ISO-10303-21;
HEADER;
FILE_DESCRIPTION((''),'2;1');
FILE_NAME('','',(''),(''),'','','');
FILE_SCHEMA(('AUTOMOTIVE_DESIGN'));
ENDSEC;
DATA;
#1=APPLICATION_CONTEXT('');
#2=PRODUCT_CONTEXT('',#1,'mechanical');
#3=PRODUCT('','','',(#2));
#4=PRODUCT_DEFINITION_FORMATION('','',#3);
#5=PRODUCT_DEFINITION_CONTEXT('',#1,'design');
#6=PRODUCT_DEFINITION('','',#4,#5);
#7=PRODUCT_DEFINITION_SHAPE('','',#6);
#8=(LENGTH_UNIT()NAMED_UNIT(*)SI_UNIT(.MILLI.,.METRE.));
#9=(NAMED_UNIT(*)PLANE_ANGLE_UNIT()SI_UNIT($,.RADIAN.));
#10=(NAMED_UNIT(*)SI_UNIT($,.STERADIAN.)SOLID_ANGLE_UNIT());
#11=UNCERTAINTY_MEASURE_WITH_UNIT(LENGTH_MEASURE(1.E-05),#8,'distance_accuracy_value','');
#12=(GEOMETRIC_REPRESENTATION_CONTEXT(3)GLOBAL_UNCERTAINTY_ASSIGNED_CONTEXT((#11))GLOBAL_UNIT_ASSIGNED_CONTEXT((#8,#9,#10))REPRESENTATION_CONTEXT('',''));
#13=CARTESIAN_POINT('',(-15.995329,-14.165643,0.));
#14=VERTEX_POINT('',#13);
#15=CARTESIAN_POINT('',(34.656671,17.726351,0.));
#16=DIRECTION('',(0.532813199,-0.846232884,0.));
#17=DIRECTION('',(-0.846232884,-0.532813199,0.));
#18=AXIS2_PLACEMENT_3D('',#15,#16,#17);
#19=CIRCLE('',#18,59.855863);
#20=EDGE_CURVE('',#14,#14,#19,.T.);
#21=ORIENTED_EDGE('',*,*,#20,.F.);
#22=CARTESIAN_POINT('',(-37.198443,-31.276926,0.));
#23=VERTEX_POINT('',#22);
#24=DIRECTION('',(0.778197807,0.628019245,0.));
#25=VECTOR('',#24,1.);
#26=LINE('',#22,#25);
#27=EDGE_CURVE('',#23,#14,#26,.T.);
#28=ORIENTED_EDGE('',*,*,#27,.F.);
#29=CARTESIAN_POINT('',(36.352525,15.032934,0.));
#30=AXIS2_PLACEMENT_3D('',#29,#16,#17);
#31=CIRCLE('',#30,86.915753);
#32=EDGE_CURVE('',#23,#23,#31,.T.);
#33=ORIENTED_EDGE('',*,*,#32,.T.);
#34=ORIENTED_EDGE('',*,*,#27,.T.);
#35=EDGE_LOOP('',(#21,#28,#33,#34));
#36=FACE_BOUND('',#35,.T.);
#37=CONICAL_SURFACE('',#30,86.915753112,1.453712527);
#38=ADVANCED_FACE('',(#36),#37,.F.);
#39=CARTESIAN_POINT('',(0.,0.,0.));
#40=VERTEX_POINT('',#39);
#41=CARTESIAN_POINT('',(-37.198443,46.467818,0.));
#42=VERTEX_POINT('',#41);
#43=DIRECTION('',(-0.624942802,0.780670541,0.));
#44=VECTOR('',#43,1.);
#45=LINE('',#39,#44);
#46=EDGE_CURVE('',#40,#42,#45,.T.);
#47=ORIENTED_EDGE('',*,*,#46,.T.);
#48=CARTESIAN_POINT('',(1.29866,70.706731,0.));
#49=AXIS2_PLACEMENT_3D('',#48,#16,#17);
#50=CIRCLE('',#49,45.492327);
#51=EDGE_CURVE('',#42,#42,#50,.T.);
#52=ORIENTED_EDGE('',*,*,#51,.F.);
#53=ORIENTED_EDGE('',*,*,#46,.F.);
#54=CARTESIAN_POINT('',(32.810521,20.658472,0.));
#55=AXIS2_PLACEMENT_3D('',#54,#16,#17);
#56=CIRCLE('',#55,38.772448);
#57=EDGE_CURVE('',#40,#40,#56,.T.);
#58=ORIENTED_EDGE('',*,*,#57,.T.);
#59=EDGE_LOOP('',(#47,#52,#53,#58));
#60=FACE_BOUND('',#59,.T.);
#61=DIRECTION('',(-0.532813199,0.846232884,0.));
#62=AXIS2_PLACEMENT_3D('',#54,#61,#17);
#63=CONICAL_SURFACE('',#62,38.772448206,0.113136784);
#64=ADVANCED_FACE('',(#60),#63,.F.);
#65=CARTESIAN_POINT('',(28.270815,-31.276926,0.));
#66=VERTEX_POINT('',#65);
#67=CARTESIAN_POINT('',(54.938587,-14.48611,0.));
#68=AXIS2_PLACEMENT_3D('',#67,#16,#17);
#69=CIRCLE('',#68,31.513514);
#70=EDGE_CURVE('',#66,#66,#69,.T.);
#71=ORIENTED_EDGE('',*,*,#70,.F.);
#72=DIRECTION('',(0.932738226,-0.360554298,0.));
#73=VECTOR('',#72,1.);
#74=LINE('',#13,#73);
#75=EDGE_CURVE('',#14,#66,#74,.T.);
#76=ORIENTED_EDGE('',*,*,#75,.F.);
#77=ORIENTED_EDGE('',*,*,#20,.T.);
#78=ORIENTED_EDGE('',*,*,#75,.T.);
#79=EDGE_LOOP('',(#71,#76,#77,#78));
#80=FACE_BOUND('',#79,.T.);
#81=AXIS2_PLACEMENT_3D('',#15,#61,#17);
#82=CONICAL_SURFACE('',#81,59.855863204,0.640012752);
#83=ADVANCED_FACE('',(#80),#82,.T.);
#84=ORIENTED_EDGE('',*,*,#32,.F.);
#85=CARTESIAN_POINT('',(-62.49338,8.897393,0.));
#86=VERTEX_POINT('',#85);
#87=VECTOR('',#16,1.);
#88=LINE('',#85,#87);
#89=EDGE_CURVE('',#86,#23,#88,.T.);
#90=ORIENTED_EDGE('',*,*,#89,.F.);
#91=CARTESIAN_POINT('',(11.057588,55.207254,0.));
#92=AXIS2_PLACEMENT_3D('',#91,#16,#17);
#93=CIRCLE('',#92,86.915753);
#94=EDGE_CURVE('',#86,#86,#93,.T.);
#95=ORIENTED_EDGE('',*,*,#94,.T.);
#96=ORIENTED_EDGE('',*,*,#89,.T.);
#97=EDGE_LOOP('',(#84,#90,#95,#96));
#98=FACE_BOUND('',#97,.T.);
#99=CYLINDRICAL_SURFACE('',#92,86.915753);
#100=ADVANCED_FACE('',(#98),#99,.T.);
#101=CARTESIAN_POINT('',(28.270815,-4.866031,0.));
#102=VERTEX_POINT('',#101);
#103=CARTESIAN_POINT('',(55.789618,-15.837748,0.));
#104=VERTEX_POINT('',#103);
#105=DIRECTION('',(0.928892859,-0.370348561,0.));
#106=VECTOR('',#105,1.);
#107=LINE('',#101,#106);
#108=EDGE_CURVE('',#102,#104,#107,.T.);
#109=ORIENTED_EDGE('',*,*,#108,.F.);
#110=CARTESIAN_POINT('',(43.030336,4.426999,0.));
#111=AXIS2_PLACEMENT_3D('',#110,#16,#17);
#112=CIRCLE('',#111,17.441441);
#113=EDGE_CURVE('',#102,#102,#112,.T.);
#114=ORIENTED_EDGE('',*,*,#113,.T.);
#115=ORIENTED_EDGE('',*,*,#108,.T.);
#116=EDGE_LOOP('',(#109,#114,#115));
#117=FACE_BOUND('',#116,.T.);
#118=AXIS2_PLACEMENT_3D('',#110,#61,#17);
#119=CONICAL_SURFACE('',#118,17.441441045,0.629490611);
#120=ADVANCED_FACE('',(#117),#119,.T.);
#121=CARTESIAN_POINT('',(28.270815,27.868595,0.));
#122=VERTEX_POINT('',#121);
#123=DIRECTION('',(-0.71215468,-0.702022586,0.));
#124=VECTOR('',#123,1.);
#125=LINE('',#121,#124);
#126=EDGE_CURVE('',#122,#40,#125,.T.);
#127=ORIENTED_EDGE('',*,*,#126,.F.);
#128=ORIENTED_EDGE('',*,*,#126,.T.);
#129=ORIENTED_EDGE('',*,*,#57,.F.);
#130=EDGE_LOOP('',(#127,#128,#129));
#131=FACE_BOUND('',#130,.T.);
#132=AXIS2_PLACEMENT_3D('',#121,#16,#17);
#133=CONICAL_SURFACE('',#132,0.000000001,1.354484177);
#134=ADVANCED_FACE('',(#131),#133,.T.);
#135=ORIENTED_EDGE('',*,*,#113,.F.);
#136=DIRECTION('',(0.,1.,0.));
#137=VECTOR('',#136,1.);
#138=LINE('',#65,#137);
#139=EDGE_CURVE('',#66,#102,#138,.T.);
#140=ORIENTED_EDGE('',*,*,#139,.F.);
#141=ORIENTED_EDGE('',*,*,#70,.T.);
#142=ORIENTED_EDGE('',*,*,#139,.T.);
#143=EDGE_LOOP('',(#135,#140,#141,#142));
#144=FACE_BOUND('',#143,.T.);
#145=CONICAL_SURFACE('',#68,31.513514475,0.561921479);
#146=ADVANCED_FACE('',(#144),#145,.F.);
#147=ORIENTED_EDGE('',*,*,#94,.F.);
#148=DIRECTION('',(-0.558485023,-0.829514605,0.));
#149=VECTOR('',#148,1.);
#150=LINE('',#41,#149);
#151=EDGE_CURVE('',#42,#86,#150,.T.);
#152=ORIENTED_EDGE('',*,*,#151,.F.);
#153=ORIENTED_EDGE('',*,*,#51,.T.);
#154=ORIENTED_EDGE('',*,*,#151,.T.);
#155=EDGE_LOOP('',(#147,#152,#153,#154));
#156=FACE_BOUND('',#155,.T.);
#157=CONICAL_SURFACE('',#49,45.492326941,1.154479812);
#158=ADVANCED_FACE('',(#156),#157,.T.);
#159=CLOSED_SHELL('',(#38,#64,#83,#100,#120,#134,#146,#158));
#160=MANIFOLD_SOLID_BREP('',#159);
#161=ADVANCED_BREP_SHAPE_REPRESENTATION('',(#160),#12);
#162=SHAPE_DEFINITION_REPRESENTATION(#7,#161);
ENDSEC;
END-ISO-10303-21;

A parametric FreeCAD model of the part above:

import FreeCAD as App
import Part
import Sketcher

V = App.Vector
Q = App.Units.Quantity


def add_polygon(sketch, points):
    """Adds a closed chain of lines whose ends are joined by coincident constraints."""
    first, n = sketch.GeometryCount, len(points)
    for a, b in zip(points, points[1:] + points[:1]):
        sketch.addGeometry(Part.LineSegment(App.Vector(*a, 0), App.Vector(*b, 0)), False)
    for i in range(n):
        sketch.addConstraint(Sketcher.Constraint("Coincident", first + i, 2, first + (i + 1) % n, 1))

doc = App.newDocument("Part")
body = doc.addObject("PartDesign::Body", "Body")

# Sketch on XY plane
sketch1 = body.newObject("Sketcher::SketchObject", "Sketch")
sketch1.AttachmentSupport = (doc.getObject("XY_Plane"), [""])
sketch1.MapMode = "FlatFace"
add_polygon(sketch1, [(28, 28), (0, 0), (-37, 46), (-62, 9), (-37, -31), (-16, -14), (28, -31), (28, -5), (56, -16)])  # lines 0-8
sketch1.addGeometry(Part.LineSegment(V(1, 71, 0), V(56, -16, 0)), True)  # axis
sketch1.addConstraint([
    Sketcher.Constraint("Vertical", 6),
    Sketcher.Constraint("Coincident", 0, 2, -1, 1),
    Sketcher.Constraint("Coincident", 9, 2, 7, 2),
    Sketcher.Constraint("Parallel", 3, 8),
    Sketcher.Constraint("Parallel", 8, 9),
    Sketcher.Constraint("Horizontal", 3, 2, 5, 2),
    Sketcher.Constraint("Vertical", 1, 2, 3, 2),
    Sketcher.Constraint("Vertical", 6, 2, 8, 2),
    Sketcher.Constraint("Distance", 2, Q("45.29206 mm")),
    Sketcher.Constraint("Distance", 5, Q("47.458271 mm")),
    Sketcher.Constraint("Distance", 7, Q("29.62538 mm")),
    Sketcher.Constraint("DistanceY", 6, 1, 6, 2, Q("26.410895 mm")),
    Sketcher.Constraint("DistanceY", -1, 1, 1, 2, Q("46.467818 mm")),
    Sketcher.Constraint("DistanceX", 2, 2, -1, 1, Q("62.49338 mm")),
    Sketcher.Constraint("DistanceX", 4, 2, -1, 1, Q("15.995329 mm")),
    Sketcher.Constraint("DistanceY", 6, 2, -1, 1, Q("4.866031 mm")),
    Sketcher.Constraint("DistanceX", -1, 1, 7, 2, Q("55.789618 mm")),
    Sketcher.Constraint("DistanceY", 7, 2, -1, 1, Q("15.837748 mm")),
    Sketcher.Constraint("DistanceX", -1, 1, 9, 1, Q("1.29866 mm")),
    Sketcher.Constraint("DistanceY", -1, 1, 9, 1, Q("70.706731 mm")),
])
revolution = body.newObject("PartDesign::Revolution", "Revolution")
revolution.Profile = sketch1
revolution.ReferenceAxis = (sketch1, ["Axis0"])
revolution.Angle = 360

doc.recompute()
